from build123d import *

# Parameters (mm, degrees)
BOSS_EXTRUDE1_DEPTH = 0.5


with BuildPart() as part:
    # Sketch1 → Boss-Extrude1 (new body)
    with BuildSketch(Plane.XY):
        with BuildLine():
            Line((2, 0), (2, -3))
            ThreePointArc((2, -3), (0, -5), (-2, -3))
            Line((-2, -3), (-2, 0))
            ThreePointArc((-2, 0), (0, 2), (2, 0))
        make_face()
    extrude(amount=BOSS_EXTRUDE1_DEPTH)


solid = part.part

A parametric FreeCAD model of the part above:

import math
import FreeCAD as App
import Part
import Sketcher
Q = App.Units.Quantity

doc = App.newDocument("Part")
body = doc.addObject("PartDesign::Body", "Body")

sketch1 = body.newObject("Sketcher::SketchObject", "Sketch")
sketch1.AttachmentSupport = (doc.getObject("XY_Plane"), [""])
sketch1.MapMode = "FlatFace"
sketch1.addGeometry([
    Part.LineSegment(App.Vector(2, -3, 0), App.Vector(2, 0, 0)),
    Part.ArcOfCircle(Part.Circle(App.Vector(0, 0, 0), App.Vector(0, 0, 1), 2), math.radians(0), math.radians(180)),
    Part.LineSegment(App.Vector(-2, 0, 0), App.Vector(-2, -3, 0)),
    Part.ArcOfCircle(Part.Circle(App.Vector(0, -3, 0), App.Vector(0, 0, 1), 2), math.radians(180), math.radians(360)),
], False)
sketch1.addConstraint([
    Sketcher.Constraint("Tangent", 0, 2, 1, 1),
    Sketcher.Constraint("Tangent", 1, 2, 2, 1),
    Sketcher.Constraint("Tangent", 2, 2, 3, 1),
    Sketcher.Constraint("Tangent", 3, 2, 0, 1),
    Sketcher.Constraint("Vertical", 0),
    Sketcher.Constraint("Vertical", 2),
    Sketcher.Constraint("Coincident", 1, 3, -1, 1),
    Sketcher.Constraint("Radius", 1, Q("2 mm")),
    Sketcher.Constraint("DistanceY", 0, 1, 0, 2, Q("3 mm")),
])
pad1 = body.newObject("PartDesign::Pad", "Pad")
pad1.Profile = sketch1
pad1.Length = 0.5

doc.recompute()
